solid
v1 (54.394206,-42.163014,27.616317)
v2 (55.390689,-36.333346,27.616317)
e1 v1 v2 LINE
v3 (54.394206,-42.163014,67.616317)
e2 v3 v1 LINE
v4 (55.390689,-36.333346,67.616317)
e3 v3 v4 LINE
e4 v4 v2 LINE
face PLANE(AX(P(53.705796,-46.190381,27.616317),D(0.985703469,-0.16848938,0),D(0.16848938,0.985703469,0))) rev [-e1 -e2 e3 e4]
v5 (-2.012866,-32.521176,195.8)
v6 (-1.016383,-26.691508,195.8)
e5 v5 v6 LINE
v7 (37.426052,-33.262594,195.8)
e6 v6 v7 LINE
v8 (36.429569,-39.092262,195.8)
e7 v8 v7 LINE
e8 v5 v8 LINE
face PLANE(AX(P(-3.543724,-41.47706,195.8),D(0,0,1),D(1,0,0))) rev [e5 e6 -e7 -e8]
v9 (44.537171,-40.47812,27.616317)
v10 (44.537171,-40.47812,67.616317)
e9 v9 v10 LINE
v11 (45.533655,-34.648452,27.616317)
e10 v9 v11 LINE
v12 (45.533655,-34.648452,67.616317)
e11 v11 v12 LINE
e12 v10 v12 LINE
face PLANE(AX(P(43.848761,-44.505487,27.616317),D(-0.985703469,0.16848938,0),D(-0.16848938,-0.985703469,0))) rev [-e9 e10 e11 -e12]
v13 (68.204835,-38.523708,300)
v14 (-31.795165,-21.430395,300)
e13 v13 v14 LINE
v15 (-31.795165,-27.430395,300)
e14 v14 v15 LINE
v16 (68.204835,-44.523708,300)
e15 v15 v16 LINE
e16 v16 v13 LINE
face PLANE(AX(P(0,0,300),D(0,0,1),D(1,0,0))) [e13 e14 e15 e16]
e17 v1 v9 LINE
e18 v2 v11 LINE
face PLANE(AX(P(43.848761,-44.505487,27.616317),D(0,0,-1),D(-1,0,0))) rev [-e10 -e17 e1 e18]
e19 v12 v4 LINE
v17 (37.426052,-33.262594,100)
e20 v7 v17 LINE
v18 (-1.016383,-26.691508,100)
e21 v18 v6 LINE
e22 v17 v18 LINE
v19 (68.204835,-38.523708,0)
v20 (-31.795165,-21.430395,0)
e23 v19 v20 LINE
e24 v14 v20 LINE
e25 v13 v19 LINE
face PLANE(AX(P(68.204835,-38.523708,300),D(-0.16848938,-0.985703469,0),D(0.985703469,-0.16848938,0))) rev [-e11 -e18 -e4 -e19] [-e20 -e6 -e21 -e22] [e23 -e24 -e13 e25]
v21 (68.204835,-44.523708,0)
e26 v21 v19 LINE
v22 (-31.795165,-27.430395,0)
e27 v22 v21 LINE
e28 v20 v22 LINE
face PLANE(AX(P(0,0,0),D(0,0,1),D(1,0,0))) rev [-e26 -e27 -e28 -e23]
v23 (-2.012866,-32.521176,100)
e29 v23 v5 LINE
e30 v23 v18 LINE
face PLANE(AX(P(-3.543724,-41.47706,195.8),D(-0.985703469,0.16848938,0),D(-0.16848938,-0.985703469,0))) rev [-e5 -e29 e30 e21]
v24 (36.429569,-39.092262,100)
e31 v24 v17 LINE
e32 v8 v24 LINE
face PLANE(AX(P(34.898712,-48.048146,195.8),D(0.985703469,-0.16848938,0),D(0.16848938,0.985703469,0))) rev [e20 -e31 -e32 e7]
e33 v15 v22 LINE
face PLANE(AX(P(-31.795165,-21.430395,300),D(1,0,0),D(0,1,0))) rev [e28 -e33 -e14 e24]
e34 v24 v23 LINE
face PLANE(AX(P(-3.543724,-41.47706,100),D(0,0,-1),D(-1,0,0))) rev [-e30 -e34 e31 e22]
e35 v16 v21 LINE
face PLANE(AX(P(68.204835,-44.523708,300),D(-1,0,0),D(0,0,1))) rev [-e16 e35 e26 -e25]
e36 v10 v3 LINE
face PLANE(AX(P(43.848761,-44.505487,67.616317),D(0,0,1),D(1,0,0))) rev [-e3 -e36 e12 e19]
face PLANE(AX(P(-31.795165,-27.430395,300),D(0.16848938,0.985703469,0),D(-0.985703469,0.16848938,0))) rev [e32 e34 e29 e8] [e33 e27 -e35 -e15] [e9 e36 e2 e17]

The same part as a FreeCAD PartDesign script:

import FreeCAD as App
import Part
import Sketcher
Q = App.Units.Quantity


def add_polygon(sketch, points):
    """Adds a closed chain of lines whose ends are joined by coincident constraints."""
    first, n = sketch.GeometryCount, len(points)
    for a, b in zip(points, points[1:] + points[:1]):
        sketch.addGeometry(Part.LineSegment(App.Vector(*a, 0), App.Vector(*b, 0)), False)
    for i in range(n):
        sketch.addConstraint(Sketcher.Constraint("Coincident", first + i, 2, first + (i + 1) % n, 1))

doc = App.newDocument("Part")
params = doc.addObject("Spreadsheet::Sheet", "Params")
for row, (alias, value) in enumerate([
    ("sketch1_height", "6 mm"),
    ("pad1_length", "300 mm"),
    ("sketch2_width", "39 mm"),
    ("sketch2_height", "95.8 mm"),
    ("pocket1_length", "15 mm"),
    ("sketch3_width", "10 mm"),
    ("sketch3_height", "40 mm"),
    ("pocket2_length", "10 mm"),
], start=1):
    params.set(f"A{row}", alias)
    params.set(f"B{row}", "=" + value)
    params.setAlias(f"B{row}", alias)

body = doc.addObject("PartDesign::Body", "Body")

# Sketch on XY plane
sketch1 = body.newObject("Sketcher::SketchObject", "Sketch")
sketch1.AttachmentSupport = (doc.getObject("XY_Plane"), [""])
sketch1.MapMode = "FlatFace"
add_polygon(sketch1, [(68.204835, -44.523708), (68.204835, -38.523708), (-31.795165, -21.430395), (-31.795165, -27.430395)])  # lines 0-3
sketch1.addConstraint([
    Sketcher.Constraint("Vertical", 0),
    Sketcher.Constraint("Vertical", 2),
    Sketcher.Constraint("Parallel", 1, 3),
    Sketcher.Constraint("DistanceY", 0, 1, 0, 2, 6.0),
    Sketcher.Constraint("Angle", 1, Q("170.3 deg")),
    Sketcher.Constraint("DistanceX", 1, 2, 0, 2, 100.0),
    Sketcher.Constraint("DistanceX", -1, 1, 0, 2, 68.204835),
    Sketcher.Constraint("DistanceY", 0, 2, -1, 1, 38.523708),
])
sketch1.setExpression("Constraints[7]", "Params.sketch1_height")
pad1 = body.newObject("PartDesign::Pad", "Pad")
pad1.Profile = sketch1
pad1.setExpression("Length", "Params.pad1_length")

# Sketch on an angled plane
sketch2 = body.newObject("Sketcher::SketchObject", "Sketch001")
sketch2.Placement = App.Placement(App.Vector(-4.461795, -26.102573, 0), App.Rotation(App.Vector(0.985703469, -0.16848938, 0), App.Vector(0, 0, -1), App.Vector(0.16848938, 0.985703469, 0), "ZXY"))
add_polygon(sketch2, [(3.495383, -100), (3.495383, -195.8), (42.495383, -195.8), (42.495383, -100)])  # lines 0-3
sketch2.addConstraint([
    Sketcher.Constraint("Vertical", 0),
    Sketcher.Constraint("Horizontal", 1),
    Sketcher.Constraint("Vertical", 2),
    Sketcher.Constraint("Horizontal", 3),
    Sketcher.Constraint("DistanceX", 1, 1, 1, 2, 39.0),
    Sketcher.Constraint("DistanceY", 0, 2, 0, 1, 95.8),
    Sketcher.Constraint("DistanceY", 2, 2, -1, 1, 100.0),
    Sketcher.Constraint("DistanceX", -1, 1, 0, 2, 3.495383),
])
sketch2.setExpression("Constraints[8]", "Params.sketch2_width")
sketch2.setExpression("Constraints[9]", "Params.sketch2_height")
pocket1 = body.newObject("PartDesign::Pocket", "Pocket")
pocket1.Profile = sketch2
pocket1.setExpression("Length", "Params.pocket1_length")

# Sketch on an angled plane
sketch3 = body.newObject("Sketcher::SketchObject", "Sketch002")
sketch3.Placement = App.Placement(App.Vector(-4.461795, -26.102573, 0), App.Rotation(App.Vector(0.985703469, -0.16848938, 0), App.Vector(0, 0, -1), App.Vector(0.16848938, 0.985703469, 0), "ZXY"))
add_polygon(sketch3, [(50.720578, -27.616317), (50.720578, -67.616317), (60.720578, -67.616317), (60.720578, -27.616317)])  # lines 0-3
sketch3.addConstraint([
    Sketcher.Constraint("Vertical", 0),
    Sketcher.Constraint("Horizontal", 1),
    Sketcher.Constraint("Vertical", 2),
    Sketcher.Constraint("Horizontal", 3),
    Sketcher.Constraint("DistanceX", 1, 1, 1, 2, 10.0),
    Sketcher.Constraint("DistanceY", 0, 2, 0, 1, 40.0),
    Sketcher.Constraint("DistanceX", -1, 1, 0, 2, 50.720578),
    Sketcher.Constraint("DistanceY", 0, 2, -1, 1, 67.616317),
])
sketch3.setExpression("Constraints[8]", "Params.sketch3_width")
sketch3.setExpression("Constraints[9]", "Params.sketch3_height")
pocket2 = body.newObject("PartDesign::Pocket", "Pocket001")
pocket2.Profile = sketch3
pocket2.setExpression("Length", "Params.pocket2_length")

doc.recompute()
